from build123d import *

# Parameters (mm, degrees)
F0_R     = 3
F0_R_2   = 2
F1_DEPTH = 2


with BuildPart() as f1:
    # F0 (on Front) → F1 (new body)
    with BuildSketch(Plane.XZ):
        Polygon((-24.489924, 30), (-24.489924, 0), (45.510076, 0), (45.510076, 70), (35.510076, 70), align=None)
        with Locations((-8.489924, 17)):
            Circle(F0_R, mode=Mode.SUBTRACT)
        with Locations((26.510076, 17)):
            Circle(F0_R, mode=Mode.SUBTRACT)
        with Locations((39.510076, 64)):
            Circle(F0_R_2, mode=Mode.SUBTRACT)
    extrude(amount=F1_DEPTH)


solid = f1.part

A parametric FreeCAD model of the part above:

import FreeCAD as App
import Part
import Sketcher

V = App.Vector

doc = App.newDocument("Part")
body = doc.addObject("PartDesign::Body", "Body")

sketch1 = doc.addObject("Sketcher::SketchObject", "Sketch")
body.addObject(sketch1)
sketch1.AttachmentSupport = (doc.XZ_Plane, [""])
sketch1.MapMode = "FlatFace"
sketch1.addGeometry([
    Part.LineSegment(V(-24.489924, 30, 0), V(-24.489924, 0, 0)),
    Part.LineSegment(V(-24.489924, 0, 0), V(45.510076, 0, 0)),
    Part.LineSegment(V(45.510076, 0, 0), V(45.510076, 70, 0)),
    Part.LineSegment(V(45.510076, 70, 0), V(35.510076, 70, 0)),
    Part.LineSegment(V(35.510076, 70, 0), V(-24.489924, 30, 0)),
    Part.Circle(V(-8.489924, 17, 0), V(0, 0, 1), 3),
    Part.Circle(V(26.510076, 17, 0), V(0, 0, 1), 3),
    Part.Circle(V(39.510076, 64, 0), V(0, 0, 1), 2),
], False)
sketch1.addConstraint([
    Sketcher.Constraint("Coincident", 0, 2, 1, 1),
    Sketcher.Constraint("Coincident", 1, 2, 2, 1),
    Sketcher.Constraint("Coincident", 2, 2, 3, 1),
    Sketcher.Constraint("Coincident", 3, 2, 4, 1),
    Sketcher.Constraint("Coincident", 4, 2, 0, 1),
    Sketcher.Constraint("Vertical", 0),
    Sketcher.Constraint("Horizontal", 1),
    Sketcher.Constraint("Vertical", 2),
    Sketcher.Constraint("Horizontal", 3),
    Sketcher.Constraint("Equal", 5, 6),
    Sketcher.Constraint("PointOnObject", 0, 2, -1),
    Sketcher.Constraint("Horizontal", 5, 3, 6, 3),
    Sketcher.Constraint("Equal", 1, 2),
    Sketcher.Constraint("Diameter", 5, 6.0),
    Sketcher.Constraint("Diameter", 7, 4.0),
    Sketcher.Constraint("DistanceX", 1, 1, 1, 2, 70.0),
    Sketcher.Constraint("DistanceX", 3, 2, 3, 1, 10.0),
    Sketcher.Constraint("DistanceY", 0, 2, 0, 1, 30.0),
    Sketcher.Constraint("DistanceY", -1, 1, 5, 3, 17.0),
    Sketcher.Constraint("DistanceY", -1, 1, 7, 3, 64.0),
    Sketcher.Constraint("DistanceX", 5, 3, 6, 3, 35.0),
    Sketcher.Constraint("DistanceX", 6, 3, 7, 3, 13.0),
    Sketcher.Constraint("DistanceX", 0, 2, 5, 3, 16.0),
    Sketcher.Constraint("DistanceX", 5, 3, -1, 1, 8.489924),
])
pad1 = doc.addObject("PartDesign::Pad", "Pad")
body.addObject(pad1)
pad1.Profile = sketch1
pad1.Length = 2

doc.recompute()
